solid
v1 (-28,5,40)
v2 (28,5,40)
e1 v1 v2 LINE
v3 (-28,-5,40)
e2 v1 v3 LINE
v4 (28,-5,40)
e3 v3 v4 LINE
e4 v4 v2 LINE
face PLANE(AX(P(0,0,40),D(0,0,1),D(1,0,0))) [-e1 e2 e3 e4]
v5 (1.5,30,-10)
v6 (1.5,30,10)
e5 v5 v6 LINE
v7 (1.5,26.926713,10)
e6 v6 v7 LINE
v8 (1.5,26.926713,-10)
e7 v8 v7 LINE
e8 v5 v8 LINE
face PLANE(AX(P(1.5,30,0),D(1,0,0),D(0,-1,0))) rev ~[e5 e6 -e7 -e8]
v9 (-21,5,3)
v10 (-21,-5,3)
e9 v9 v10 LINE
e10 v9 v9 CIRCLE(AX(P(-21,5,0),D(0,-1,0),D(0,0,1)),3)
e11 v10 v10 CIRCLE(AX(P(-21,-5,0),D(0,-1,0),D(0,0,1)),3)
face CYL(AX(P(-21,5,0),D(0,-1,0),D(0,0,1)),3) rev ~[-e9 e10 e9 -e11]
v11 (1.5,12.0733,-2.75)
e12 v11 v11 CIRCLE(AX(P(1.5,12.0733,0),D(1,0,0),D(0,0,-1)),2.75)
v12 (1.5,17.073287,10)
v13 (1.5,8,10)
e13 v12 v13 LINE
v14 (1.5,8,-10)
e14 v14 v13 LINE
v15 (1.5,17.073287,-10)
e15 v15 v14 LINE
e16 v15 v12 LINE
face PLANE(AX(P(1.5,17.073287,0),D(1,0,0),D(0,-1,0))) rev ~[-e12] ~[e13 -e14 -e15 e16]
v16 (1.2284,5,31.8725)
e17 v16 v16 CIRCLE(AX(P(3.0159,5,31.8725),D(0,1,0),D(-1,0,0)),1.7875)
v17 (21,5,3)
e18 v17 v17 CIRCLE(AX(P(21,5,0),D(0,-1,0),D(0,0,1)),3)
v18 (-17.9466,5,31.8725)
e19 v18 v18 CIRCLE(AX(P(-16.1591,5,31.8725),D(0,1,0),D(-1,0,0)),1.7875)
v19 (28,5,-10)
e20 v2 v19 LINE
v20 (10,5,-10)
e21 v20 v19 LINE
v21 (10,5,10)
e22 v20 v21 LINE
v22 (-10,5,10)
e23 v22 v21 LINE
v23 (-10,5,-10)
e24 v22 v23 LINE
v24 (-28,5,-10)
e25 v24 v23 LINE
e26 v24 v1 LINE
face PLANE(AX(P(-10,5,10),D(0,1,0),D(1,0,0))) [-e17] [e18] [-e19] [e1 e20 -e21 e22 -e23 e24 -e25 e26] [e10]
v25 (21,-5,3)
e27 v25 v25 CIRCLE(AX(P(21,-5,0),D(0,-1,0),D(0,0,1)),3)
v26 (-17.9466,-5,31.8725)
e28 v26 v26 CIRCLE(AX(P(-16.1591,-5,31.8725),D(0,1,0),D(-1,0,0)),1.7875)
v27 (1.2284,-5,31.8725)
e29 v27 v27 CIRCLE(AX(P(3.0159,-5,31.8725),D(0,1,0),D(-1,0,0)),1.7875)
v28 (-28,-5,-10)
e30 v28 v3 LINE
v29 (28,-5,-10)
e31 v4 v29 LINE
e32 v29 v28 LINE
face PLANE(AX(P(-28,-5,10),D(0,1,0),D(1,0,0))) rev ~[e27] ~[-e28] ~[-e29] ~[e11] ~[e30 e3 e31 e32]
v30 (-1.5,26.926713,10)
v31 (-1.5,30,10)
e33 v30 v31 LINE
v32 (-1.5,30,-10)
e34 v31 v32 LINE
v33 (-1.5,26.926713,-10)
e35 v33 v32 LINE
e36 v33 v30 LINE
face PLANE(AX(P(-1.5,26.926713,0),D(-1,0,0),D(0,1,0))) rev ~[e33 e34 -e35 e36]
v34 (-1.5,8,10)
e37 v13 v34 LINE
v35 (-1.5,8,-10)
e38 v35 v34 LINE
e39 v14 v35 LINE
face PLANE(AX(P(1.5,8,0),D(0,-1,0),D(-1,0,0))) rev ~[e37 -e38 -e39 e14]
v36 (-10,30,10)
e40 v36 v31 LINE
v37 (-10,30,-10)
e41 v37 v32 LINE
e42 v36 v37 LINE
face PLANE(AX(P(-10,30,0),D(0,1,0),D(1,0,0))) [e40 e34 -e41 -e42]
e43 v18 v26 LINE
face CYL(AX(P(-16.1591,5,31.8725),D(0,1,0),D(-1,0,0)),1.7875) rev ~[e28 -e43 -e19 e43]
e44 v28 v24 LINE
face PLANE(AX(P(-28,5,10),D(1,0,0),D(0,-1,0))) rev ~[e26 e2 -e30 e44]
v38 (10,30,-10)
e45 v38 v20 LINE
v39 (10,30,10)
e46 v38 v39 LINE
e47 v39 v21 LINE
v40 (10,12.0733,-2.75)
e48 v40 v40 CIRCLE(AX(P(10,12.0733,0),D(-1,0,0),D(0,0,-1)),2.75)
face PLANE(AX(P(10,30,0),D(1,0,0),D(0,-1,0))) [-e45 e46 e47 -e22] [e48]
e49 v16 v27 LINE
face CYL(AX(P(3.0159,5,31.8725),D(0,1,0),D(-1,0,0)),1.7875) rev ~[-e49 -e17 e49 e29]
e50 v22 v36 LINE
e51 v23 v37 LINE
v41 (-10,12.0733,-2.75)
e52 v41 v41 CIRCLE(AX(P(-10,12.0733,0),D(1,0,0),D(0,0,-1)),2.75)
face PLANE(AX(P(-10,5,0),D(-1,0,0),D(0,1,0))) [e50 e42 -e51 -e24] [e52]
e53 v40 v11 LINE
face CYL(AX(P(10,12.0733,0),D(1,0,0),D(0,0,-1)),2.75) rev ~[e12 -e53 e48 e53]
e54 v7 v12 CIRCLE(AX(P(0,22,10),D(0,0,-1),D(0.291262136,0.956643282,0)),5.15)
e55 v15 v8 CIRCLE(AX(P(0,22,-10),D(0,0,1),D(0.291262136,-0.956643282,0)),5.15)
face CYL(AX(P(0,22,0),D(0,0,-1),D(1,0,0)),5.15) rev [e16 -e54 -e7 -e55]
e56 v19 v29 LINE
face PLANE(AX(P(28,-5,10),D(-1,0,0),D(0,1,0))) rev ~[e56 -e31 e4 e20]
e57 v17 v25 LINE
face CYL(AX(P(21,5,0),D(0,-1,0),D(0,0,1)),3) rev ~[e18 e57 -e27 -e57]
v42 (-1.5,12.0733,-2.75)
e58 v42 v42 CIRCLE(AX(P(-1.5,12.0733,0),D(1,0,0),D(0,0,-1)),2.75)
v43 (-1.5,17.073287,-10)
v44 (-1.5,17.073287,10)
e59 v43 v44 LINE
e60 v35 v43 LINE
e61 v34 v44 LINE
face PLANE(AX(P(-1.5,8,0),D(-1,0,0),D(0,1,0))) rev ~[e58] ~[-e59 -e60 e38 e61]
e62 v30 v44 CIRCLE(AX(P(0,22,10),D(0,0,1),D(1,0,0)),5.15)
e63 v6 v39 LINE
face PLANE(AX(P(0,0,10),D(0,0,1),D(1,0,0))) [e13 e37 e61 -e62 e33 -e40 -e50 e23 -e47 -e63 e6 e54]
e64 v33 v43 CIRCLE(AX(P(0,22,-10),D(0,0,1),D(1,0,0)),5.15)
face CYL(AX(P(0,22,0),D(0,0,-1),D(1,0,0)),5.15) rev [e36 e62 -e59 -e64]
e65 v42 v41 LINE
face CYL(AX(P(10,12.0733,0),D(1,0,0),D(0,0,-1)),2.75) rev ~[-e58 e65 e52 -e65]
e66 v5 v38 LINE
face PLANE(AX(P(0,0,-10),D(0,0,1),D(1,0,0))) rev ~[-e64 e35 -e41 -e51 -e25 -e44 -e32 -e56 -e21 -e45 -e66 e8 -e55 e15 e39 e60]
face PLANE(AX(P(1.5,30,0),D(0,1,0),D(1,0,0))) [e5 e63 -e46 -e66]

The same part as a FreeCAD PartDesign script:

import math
import FreeCAD as App
import Part
import Sketcher
from FreeCAD import Vector
Q = App.Units.Quantity

doc = App.newDocument("Part")
body = doc.addObject("PartDesign::Body", "Body")

# Sketch on XY plane
sketch1 = body.newObject("Sketcher::SketchObject", "Sketch")
sketch1.AttachmentSupport = (doc.getObject("XY_Plane"), [""])
sketch1.MapMode = "FlatFace"
sketch1.addGeometry([
    Part.LineSegment(Vector(-10, 5, 0), Vector(-28, 5, 0)),  # 0
    Part.LineSegment(Vector(-28, 5, 0), Vector(-28, -5, 0)),  # 1
    Part.LineSegment(Vector(-28, -5, 0), Vector(28, -5, 0)),  # 2
    Part.LineSegment(Vector(28, -5, 0), Vector(28, 5, 0)),  # 3
    Part.LineSegment(Vector(28, 5, 0), Vector(10, 5, 0)),  # 4
    Part.LineSegment(Vector(10, 5, 0), Vector(10, 30, 0)),  # 5
    Part.LineSegment(Vector(10, 30, 0), Vector(1.5, 30, 0)),  # 6
    Part.LineSegment(Vector(1.5, 30, 0), Vector(1.5, 26.9, 0)),  # 7
    Part.ArcOfCircle(Part.Circle(Vector(0, 22, 0), Vector(0, 0, 1), 5.2), math.radians(-73), math.radians(73)),  # 8
    Part.LineSegment(Vector(1.5, 17.1, 0), Vector(1.5, 8, 0)),  # 9
    Part.LineSegment(Vector(1.5, 8, 0), Vector(-1.5, 8, 0)),  # 10
    Part.LineSegment(Vector(-1.5, 8, 0), Vector(-1.5, 17.1, 0)),  # 11
    Part.ArcOfCircle(Part.Circle(Vector(0, 22, 0), Vector(0, 0, 1), 5.2), math.radians(107), math.radians(253)),  # 12
    Part.LineSegment(Vector(-1.5, 26.9, 0), Vector(-1.5, 30, 0)),  # 13
    Part.LineSegment(Vector(-1.5, 30, 0), Vector(-10, 30, 0)),  # 14
    Part.LineSegment(Vector(-10, 30, 0), Vector(-10, 5, 0)),  # 15
], False)
sketch1.addConstraint([
    Sketcher.Constraint("Coincident", 0, 2, 1, 1),
    Sketcher.Constraint("Coincident", 1, 2, 2, 1),
    Sketcher.Constraint("Coincident", 2, 2, 3, 1),
    Sketcher.Constraint("Coincident", 3, 2, 4, 1),
    Sketcher.Constraint("Coincident", 4, 2, 5, 1),
    Sketcher.Constraint("Coincident", 5, 2, 6, 1),
    Sketcher.Constraint("Coincident", 6, 2, 7, 1),
    Sketcher.Constraint("Coincident", 7, 2, 8, 2),
    Sketcher.Constraint("Coincident", 8, 1, 9, 1),
    Sketcher.Constraint("Coincident", 9, 2, 10, 1),
    Sketcher.Constraint("Coincident", 10, 2, 11, 1),
    Sketcher.Constraint("Coincident", 11, 2, 12, 2),
    Sketcher.Constraint("Coincident", 12, 1, 13, 1),
    Sketcher.Constraint("Coincident", 13, 2, 14, 1),
    Sketcher.Constraint("Coincident", 14, 2, 15, 1),
    Sketcher.Constraint("Coincident", 15, 2, 0, 1),
    Sketcher.Constraint("Horizontal", 0),
    Sketcher.Constraint("Vertical", 1),
    Sketcher.Constraint("Horizontal", 2),
    Sketcher.Constraint("Vertical", 3),
    Sketcher.Constraint("Horizontal", 4),
    Sketcher.Constraint("Vertical", 5),
    Sketcher.Constraint("Horizontal", 6),
    Sketcher.Constraint("Vertical", 7),
    Sketcher.Constraint("Vertical", 9),
    Sketcher.Constraint("Horizontal", 10),
    Sketcher.Constraint("Vertical", 11),
    Sketcher.Constraint("Vertical", 13),
    Sketcher.Constraint("Horizontal", 14),
    Sketcher.Constraint("Vertical", 15),
    Sketcher.Constraint("Coincident", 12, 3, 8, 3),
    Sketcher.Constraint("Equal", 8, 12),
    Sketcher.Constraint("Symmetric", 0, 2, 2, 2, -1, 1),
    Sketcher.Constraint("Symmetric", 8, 1, 11, 2, -2),
    Sketcher.Constraint("Symmetric", 6, 2, 13, 2, -2),
    Sketcher.Constraint("Symmetric", 4, 2, 15, 2, -2),
    Sketcher.Constraint("Vertical", 7, 2, 8, 1),
    Sketcher.Constraint("DistanceX", 0, 2, 0, 1, Q("18 mm")),
    Sketcher.Constraint("DistanceX", 10, 2, 10, 1, Q("3 mm")),
    Sketcher.Constraint("DistanceY", 1, 2, 1, 1, Q("10 mm")),
    Sketcher.Constraint("Radius", 8, Q("5.15 mm")),
    Sketcher.Constraint("DistanceX", -1, 1, 4, 2, Q("10 mm")),
    Sketcher.Constraint("DistanceY", -1, 1, 9, 2, Q("8 mm")),
    Sketcher.Constraint("DistanceY", 0, 2, 8, 3, Q("17 mm")),
    Sketcher.Constraint("DistanceY", 8, 3, 5, 2, Q("8 mm")),
])
pad1 = body.newObject("PartDesign::Pad", "Pad")
pad1.Profile = sketch1
pad1.Length = 20
pad1.Midplane = True

# Sketch on XZ plane
sketch2 = body.newObject("Sketcher::SketchObject", "Sketch001")
sketch2.AttachmentSupport = (doc.getObject("XZ_Plane"), [""])
sketch2.MapMode = "FlatFace"
sketch2.AttachmentOffset = App.Placement(Vector(0, 0, -5), App.Rotation())
sketch2.addGeometry([
    Part.Circle(Vector(-21, 0, 0), Vector(0, 0, 1), 3),
    Part.Circle(Vector(21, 0, 0), Vector(0, 0, 1), 3),
], False)
sketch2.addConstraint([
    Sketcher.Constraint("Equal", 0, 1),
    Sketcher.Constraint("Symmetric", 0, 3, 1, 3, -1, 1),
    Sketcher.Constraint("PointOnObject", 0, 3, -1),
    Sketcher.Constraint("Diameter", 0, Q("6 mm")),
    Sketcher.Constraint("DistanceX", 0, 3, -1, 1, Q("21 mm")),
])
doc.recompute()
hole = body.newObject("PartDesign::Hole", "Hole")
hole.Profile = sketch2
hole.ThreadType = "None"
hole.Diameter = 6
hole.DepthType = "ThroughAll"
hole.Reversed = True

# Sketch on XY plane
sketch3 = body.newObject("Sketcher::SketchObject", "Sketch002")
sketch3.AttachmentSupport = (doc.getObject("XY_Plane"), [""])
sketch3.MapMode = "FlatFace"
sketch3.AttachmentOffset = App.Placement(Vector(0, 0, 10), App.Rotation())
sketch3.addGeometry([
    Part.LineSegment(Vector(28, 5, 0), Vector(-28, 5, 0)),
    Part.LineSegment(Vector(-28, 5, 0), Vector(-28, -5, 0)),
    Part.LineSegment(Vector(-28, -5, 0), Vector(28, -5, 0)),
    Part.LineSegment(Vector(28, -5, 0), Vector(28, 5, 0)),
], False)
sketch3.addConstraint([
    Sketcher.Constraint("Coincident", 0, 2, 1, 1),
    Sketcher.Constraint("Coincident", 1, 2, 2, 1),
    Sketcher.Constraint("Coincident", 2, 2, 3, 1),
    Sketcher.Constraint("Coincident", 3, 2, 0, 1),
    Sketcher.Constraint("Horizontal", 0),
    Sketcher.Constraint("Vertical", 1),
    Sketcher.Constraint("Horizontal", 2),
    Sketcher.Constraint("Vertical", 3),
    Sketcher.Constraint("Symmetric", 0, 2, 2, 2, -1, 1),
    Sketcher.Constraint("DistanceX", 0, 2, 0, 1, Q("56 mm")),
    Sketcher.Constraint("DistanceY", 1, 2, 1, 1, Q("10 mm")),
])
pad2 = body.newObject("PartDesign::Pad", "Pad001")
pad2.Profile = sketch3
pad2.Length = 30

# Sketch on YZ plane
sketch4 = body.newObject("Sketcher::SketchObject", "Sketch003")
sketch4.AttachmentSupport = (doc.getObject("YZ_Plane"), [""])
sketch4.MapMode = "FlatFace"
sketch4.AttachmentOffset = App.Placement(Vector(0, 0, 10), App.Rotation())
sketch4.addGeometry(Part.Circle(Vector(12.1, 0, 0), Vector(0, 0, 1), 2.8), False)
sketch4.addConstraint([
    Sketcher.Constraint("PointOnObject", 0, 3, -1),
    Sketcher.Constraint("Diameter", 0, Q("5.5 mm")),
    Sketcher.Constraint("DistanceX", -1, 1, 0, 3, Q("12.0733 mm")),
])
pocket1 = body.newObject("PartDesign::Pocket", "Pocket")
pocket1.Profile = sketch4
pocket1.Type = "ThroughAll"

# Sketch on XZ plane
sketch5 = body.newObject("Sketcher::SketchObject", "Sketch004")
sketch5.AttachmentSupport = (doc.getObject("XZ_Plane"), [""])
sketch5.MapMode = "FlatFace"
sketch5.AttachmentOffset = App.Placement(Vector(0, 0, -5), App.Rotation())
sketch5.addGeometry([
    Part.Circle(Vector(-16.2, 31.9, 0), Vector(0, 0, 1), 1.8),
    Part.Circle(Vector(3, 31.9, 0), Vector(0, 0, 1), 1.8),
], False)
sketch5.addConstraint([
    Sketcher.Constraint("Equal", 0, 1),
    Sketcher.Constraint("Horizontal", 0, 3, 1, 3),
    Sketcher.Constraint("Diameter", 0, Q("3.575 mm")),
    Sketcher.Constraint("DistanceX", 0, 3, -1, 1, Q("16.159 mm")),
    Sketcher.Constraint("DistanceX", -1, 1, 1, 3, Q("3.016 mm")),
    Sketcher.Constraint("DistanceY", -1, 1, 0, 3, Q("31.8725 mm")),
])
pocket2 = body.newObject("PartDesign::Pocket", "Pocket001")
pocket2.Profile = sketch5
pocket2.Length = 10
pocket2.Reversed = True

doc.recompute()
